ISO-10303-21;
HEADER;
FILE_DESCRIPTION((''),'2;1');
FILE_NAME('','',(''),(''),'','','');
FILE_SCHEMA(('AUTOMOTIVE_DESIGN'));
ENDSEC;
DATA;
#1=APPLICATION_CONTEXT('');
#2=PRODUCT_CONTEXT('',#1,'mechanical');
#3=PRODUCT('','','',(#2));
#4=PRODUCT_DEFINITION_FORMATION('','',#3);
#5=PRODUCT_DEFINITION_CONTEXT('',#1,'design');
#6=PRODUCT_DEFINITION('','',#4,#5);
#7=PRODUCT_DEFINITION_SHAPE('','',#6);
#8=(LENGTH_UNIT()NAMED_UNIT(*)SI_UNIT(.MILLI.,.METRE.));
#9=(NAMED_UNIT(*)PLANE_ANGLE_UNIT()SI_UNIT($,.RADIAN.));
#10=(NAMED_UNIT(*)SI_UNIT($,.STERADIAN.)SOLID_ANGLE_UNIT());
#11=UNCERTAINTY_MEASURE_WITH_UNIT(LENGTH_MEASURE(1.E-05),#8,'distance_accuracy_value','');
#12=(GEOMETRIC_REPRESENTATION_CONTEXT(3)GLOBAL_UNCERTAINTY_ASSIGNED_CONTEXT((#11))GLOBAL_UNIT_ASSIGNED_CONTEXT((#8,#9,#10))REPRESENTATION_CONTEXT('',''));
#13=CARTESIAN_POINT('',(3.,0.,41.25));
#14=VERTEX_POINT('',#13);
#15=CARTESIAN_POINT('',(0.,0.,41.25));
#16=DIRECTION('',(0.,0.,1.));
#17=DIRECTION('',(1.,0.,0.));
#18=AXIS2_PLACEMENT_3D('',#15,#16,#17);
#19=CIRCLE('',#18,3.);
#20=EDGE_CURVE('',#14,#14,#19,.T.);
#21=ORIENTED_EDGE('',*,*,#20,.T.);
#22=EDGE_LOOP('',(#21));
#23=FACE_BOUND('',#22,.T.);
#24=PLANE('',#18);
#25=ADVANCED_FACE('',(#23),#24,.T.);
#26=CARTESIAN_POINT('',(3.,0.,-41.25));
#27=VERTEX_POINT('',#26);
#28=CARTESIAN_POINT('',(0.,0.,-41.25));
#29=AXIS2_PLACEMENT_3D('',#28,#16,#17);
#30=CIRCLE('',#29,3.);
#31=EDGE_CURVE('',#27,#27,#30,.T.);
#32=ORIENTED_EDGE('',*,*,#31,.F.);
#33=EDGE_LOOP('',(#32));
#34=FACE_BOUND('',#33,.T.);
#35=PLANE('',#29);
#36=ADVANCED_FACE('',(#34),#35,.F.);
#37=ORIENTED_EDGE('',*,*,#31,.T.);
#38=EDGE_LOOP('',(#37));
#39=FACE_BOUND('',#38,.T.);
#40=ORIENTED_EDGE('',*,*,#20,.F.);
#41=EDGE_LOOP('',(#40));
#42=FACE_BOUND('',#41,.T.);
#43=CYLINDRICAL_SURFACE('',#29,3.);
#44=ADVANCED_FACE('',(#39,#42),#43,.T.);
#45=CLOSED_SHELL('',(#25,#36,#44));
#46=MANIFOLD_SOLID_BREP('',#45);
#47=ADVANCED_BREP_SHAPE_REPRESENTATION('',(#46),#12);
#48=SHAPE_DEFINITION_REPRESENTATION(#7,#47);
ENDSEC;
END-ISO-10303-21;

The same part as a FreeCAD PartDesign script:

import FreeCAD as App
import Part
import Sketcher
from FreeCAD import Vector

doc = App.newDocument("Part")
body = doc.addObject("PartDesign::Body", "Body")

# Sketch on XY plane
sketch1 = body.newObject("Sketcher::SketchObject", "Sketch")
sketch1.AttachmentSupport = (doc.getObject("XY_Plane"), [""])
sketch1.MapMode = "FlatFace"
sketch1.addGeometry(Part.Circle(Vector(0, 0, 0), Vector(0, 0, 1), 3), False)
sketch1.addConstraint(Sketcher.Constraint("Coincident", 0, 3, -1, 1))
sketch1.addConstraint(Sketcher.Constraint("Diameter", 0, 6.0))
pad1 = body.newObject("PartDesign::Pad", "Pad")
pad1.Profile = sketch1
pad1.Type = "TwoLengths"
pad1.Length = 41.25
pad1.Length2 = 41.25

doc.recompute()
